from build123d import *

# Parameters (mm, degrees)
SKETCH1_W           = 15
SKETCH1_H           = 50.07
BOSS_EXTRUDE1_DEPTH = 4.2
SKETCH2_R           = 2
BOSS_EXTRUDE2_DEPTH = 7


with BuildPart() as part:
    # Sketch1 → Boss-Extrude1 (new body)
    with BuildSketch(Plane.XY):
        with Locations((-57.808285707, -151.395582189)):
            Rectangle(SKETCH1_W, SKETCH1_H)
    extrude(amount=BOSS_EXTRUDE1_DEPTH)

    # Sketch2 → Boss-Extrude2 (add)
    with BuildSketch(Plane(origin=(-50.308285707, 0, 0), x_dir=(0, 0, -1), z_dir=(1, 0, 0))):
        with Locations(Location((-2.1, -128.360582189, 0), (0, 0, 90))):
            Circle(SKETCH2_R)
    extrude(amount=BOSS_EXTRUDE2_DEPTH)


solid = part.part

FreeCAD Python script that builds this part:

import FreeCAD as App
import Part
import Sketcher
from FreeCAD import Vector


def add_polygon(sketch, points):
    """Adds a closed chain of lines whose ends are joined by coincident constraints."""
    first, n = sketch.GeometryCount, len(points)
    for a, b in zip(points, points[1:] + points[:1]):
        sketch.addGeometry(Part.LineSegment(App.Vector(*a, 0), App.Vector(*b, 0)), False)
    for i in range(n):
        sketch.addConstraint(Sketcher.Constraint("Coincident", first + i, 2, first + (i + 1) % n, 1))

doc = App.newDocument("Part")
body = doc.addObject("PartDesign::Body", "Body")

# Sketch on XY plane
sketch1 = doc.addObject("Sketcher::SketchObject", "Sketch")
body.addObject(sketch1)
sketch1.AttachmentSupport = (doc.XY_Plane, [""])
sketch1.MapMode = "FlatFace"
add_polygon(sketch1, [(-65, -126), (-65, -176), (-50, -176), (-50, -126)])  # lines 0-3
sketch1.addConstraint(Sketcher.Constraint("Vertical", 0))
sketch1.addConstraint(Sketcher.Constraint("Horizontal", 1))
sketch1.addConstraint(Sketcher.Constraint("Vertical", 2))
sketch1.addConstraint(Sketcher.Constraint("Horizontal", 3))
sketch1.addConstraint(Sketcher.Constraint("DistanceX", 1, 1, 1, 2, 15.0))
sketch1.addConstraint(Sketcher.Constraint("DistanceY", 0, 2, 0, 1, 50.07))
sketch1.addConstraint(Sketcher.Constraint("DistanceX", 0, 2, -1, 1, 65.308286))
sketch1.addConstraint(Sketcher.Constraint("DistanceY", 0, 2, -1, 1, 176.430582))
pad1 = doc.addObject("PartDesign::Pad", "Pad")
body.addObject(pad1)
pad1.Profile = sketch1
pad1.Length = 4.2

# Sketch on YZ plane
sketch2 = doc.addObject("Sketcher::SketchObject", "Sketch001")
body.addObject(sketch2)
sketch2.AttachmentSupport = (doc.YZ_Plane, [""])
sketch2.MapMode = "FlatFace"
sketch2.AttachmentOffset = App.Placement(Vector(0, 0, -50.308286), App.Rotation())
sketch2.addGeometry(Part.Circle(Vector(-128.4, 2.1, 0), Vector(0, 0, 1), 2), False)
sketch2.addConstraint(Sketcher.Constraint("Diameter", 0, 4.0))
sketch2.addConstraint(Sketcher.Constraint("DistanceY", -1, 1, 0, 3, 2.1))
sketch2.addConstraint(Sketcher.Constraint("DistanceX", 0, 3, -1, 1, 128.360582))
pad2 = doc.addObject("PartDesign::Pad", "Pad001")
body.addObject(pad2)
pad2.Profile = sketch2
pad2.Length = 7

doc.recompute()
